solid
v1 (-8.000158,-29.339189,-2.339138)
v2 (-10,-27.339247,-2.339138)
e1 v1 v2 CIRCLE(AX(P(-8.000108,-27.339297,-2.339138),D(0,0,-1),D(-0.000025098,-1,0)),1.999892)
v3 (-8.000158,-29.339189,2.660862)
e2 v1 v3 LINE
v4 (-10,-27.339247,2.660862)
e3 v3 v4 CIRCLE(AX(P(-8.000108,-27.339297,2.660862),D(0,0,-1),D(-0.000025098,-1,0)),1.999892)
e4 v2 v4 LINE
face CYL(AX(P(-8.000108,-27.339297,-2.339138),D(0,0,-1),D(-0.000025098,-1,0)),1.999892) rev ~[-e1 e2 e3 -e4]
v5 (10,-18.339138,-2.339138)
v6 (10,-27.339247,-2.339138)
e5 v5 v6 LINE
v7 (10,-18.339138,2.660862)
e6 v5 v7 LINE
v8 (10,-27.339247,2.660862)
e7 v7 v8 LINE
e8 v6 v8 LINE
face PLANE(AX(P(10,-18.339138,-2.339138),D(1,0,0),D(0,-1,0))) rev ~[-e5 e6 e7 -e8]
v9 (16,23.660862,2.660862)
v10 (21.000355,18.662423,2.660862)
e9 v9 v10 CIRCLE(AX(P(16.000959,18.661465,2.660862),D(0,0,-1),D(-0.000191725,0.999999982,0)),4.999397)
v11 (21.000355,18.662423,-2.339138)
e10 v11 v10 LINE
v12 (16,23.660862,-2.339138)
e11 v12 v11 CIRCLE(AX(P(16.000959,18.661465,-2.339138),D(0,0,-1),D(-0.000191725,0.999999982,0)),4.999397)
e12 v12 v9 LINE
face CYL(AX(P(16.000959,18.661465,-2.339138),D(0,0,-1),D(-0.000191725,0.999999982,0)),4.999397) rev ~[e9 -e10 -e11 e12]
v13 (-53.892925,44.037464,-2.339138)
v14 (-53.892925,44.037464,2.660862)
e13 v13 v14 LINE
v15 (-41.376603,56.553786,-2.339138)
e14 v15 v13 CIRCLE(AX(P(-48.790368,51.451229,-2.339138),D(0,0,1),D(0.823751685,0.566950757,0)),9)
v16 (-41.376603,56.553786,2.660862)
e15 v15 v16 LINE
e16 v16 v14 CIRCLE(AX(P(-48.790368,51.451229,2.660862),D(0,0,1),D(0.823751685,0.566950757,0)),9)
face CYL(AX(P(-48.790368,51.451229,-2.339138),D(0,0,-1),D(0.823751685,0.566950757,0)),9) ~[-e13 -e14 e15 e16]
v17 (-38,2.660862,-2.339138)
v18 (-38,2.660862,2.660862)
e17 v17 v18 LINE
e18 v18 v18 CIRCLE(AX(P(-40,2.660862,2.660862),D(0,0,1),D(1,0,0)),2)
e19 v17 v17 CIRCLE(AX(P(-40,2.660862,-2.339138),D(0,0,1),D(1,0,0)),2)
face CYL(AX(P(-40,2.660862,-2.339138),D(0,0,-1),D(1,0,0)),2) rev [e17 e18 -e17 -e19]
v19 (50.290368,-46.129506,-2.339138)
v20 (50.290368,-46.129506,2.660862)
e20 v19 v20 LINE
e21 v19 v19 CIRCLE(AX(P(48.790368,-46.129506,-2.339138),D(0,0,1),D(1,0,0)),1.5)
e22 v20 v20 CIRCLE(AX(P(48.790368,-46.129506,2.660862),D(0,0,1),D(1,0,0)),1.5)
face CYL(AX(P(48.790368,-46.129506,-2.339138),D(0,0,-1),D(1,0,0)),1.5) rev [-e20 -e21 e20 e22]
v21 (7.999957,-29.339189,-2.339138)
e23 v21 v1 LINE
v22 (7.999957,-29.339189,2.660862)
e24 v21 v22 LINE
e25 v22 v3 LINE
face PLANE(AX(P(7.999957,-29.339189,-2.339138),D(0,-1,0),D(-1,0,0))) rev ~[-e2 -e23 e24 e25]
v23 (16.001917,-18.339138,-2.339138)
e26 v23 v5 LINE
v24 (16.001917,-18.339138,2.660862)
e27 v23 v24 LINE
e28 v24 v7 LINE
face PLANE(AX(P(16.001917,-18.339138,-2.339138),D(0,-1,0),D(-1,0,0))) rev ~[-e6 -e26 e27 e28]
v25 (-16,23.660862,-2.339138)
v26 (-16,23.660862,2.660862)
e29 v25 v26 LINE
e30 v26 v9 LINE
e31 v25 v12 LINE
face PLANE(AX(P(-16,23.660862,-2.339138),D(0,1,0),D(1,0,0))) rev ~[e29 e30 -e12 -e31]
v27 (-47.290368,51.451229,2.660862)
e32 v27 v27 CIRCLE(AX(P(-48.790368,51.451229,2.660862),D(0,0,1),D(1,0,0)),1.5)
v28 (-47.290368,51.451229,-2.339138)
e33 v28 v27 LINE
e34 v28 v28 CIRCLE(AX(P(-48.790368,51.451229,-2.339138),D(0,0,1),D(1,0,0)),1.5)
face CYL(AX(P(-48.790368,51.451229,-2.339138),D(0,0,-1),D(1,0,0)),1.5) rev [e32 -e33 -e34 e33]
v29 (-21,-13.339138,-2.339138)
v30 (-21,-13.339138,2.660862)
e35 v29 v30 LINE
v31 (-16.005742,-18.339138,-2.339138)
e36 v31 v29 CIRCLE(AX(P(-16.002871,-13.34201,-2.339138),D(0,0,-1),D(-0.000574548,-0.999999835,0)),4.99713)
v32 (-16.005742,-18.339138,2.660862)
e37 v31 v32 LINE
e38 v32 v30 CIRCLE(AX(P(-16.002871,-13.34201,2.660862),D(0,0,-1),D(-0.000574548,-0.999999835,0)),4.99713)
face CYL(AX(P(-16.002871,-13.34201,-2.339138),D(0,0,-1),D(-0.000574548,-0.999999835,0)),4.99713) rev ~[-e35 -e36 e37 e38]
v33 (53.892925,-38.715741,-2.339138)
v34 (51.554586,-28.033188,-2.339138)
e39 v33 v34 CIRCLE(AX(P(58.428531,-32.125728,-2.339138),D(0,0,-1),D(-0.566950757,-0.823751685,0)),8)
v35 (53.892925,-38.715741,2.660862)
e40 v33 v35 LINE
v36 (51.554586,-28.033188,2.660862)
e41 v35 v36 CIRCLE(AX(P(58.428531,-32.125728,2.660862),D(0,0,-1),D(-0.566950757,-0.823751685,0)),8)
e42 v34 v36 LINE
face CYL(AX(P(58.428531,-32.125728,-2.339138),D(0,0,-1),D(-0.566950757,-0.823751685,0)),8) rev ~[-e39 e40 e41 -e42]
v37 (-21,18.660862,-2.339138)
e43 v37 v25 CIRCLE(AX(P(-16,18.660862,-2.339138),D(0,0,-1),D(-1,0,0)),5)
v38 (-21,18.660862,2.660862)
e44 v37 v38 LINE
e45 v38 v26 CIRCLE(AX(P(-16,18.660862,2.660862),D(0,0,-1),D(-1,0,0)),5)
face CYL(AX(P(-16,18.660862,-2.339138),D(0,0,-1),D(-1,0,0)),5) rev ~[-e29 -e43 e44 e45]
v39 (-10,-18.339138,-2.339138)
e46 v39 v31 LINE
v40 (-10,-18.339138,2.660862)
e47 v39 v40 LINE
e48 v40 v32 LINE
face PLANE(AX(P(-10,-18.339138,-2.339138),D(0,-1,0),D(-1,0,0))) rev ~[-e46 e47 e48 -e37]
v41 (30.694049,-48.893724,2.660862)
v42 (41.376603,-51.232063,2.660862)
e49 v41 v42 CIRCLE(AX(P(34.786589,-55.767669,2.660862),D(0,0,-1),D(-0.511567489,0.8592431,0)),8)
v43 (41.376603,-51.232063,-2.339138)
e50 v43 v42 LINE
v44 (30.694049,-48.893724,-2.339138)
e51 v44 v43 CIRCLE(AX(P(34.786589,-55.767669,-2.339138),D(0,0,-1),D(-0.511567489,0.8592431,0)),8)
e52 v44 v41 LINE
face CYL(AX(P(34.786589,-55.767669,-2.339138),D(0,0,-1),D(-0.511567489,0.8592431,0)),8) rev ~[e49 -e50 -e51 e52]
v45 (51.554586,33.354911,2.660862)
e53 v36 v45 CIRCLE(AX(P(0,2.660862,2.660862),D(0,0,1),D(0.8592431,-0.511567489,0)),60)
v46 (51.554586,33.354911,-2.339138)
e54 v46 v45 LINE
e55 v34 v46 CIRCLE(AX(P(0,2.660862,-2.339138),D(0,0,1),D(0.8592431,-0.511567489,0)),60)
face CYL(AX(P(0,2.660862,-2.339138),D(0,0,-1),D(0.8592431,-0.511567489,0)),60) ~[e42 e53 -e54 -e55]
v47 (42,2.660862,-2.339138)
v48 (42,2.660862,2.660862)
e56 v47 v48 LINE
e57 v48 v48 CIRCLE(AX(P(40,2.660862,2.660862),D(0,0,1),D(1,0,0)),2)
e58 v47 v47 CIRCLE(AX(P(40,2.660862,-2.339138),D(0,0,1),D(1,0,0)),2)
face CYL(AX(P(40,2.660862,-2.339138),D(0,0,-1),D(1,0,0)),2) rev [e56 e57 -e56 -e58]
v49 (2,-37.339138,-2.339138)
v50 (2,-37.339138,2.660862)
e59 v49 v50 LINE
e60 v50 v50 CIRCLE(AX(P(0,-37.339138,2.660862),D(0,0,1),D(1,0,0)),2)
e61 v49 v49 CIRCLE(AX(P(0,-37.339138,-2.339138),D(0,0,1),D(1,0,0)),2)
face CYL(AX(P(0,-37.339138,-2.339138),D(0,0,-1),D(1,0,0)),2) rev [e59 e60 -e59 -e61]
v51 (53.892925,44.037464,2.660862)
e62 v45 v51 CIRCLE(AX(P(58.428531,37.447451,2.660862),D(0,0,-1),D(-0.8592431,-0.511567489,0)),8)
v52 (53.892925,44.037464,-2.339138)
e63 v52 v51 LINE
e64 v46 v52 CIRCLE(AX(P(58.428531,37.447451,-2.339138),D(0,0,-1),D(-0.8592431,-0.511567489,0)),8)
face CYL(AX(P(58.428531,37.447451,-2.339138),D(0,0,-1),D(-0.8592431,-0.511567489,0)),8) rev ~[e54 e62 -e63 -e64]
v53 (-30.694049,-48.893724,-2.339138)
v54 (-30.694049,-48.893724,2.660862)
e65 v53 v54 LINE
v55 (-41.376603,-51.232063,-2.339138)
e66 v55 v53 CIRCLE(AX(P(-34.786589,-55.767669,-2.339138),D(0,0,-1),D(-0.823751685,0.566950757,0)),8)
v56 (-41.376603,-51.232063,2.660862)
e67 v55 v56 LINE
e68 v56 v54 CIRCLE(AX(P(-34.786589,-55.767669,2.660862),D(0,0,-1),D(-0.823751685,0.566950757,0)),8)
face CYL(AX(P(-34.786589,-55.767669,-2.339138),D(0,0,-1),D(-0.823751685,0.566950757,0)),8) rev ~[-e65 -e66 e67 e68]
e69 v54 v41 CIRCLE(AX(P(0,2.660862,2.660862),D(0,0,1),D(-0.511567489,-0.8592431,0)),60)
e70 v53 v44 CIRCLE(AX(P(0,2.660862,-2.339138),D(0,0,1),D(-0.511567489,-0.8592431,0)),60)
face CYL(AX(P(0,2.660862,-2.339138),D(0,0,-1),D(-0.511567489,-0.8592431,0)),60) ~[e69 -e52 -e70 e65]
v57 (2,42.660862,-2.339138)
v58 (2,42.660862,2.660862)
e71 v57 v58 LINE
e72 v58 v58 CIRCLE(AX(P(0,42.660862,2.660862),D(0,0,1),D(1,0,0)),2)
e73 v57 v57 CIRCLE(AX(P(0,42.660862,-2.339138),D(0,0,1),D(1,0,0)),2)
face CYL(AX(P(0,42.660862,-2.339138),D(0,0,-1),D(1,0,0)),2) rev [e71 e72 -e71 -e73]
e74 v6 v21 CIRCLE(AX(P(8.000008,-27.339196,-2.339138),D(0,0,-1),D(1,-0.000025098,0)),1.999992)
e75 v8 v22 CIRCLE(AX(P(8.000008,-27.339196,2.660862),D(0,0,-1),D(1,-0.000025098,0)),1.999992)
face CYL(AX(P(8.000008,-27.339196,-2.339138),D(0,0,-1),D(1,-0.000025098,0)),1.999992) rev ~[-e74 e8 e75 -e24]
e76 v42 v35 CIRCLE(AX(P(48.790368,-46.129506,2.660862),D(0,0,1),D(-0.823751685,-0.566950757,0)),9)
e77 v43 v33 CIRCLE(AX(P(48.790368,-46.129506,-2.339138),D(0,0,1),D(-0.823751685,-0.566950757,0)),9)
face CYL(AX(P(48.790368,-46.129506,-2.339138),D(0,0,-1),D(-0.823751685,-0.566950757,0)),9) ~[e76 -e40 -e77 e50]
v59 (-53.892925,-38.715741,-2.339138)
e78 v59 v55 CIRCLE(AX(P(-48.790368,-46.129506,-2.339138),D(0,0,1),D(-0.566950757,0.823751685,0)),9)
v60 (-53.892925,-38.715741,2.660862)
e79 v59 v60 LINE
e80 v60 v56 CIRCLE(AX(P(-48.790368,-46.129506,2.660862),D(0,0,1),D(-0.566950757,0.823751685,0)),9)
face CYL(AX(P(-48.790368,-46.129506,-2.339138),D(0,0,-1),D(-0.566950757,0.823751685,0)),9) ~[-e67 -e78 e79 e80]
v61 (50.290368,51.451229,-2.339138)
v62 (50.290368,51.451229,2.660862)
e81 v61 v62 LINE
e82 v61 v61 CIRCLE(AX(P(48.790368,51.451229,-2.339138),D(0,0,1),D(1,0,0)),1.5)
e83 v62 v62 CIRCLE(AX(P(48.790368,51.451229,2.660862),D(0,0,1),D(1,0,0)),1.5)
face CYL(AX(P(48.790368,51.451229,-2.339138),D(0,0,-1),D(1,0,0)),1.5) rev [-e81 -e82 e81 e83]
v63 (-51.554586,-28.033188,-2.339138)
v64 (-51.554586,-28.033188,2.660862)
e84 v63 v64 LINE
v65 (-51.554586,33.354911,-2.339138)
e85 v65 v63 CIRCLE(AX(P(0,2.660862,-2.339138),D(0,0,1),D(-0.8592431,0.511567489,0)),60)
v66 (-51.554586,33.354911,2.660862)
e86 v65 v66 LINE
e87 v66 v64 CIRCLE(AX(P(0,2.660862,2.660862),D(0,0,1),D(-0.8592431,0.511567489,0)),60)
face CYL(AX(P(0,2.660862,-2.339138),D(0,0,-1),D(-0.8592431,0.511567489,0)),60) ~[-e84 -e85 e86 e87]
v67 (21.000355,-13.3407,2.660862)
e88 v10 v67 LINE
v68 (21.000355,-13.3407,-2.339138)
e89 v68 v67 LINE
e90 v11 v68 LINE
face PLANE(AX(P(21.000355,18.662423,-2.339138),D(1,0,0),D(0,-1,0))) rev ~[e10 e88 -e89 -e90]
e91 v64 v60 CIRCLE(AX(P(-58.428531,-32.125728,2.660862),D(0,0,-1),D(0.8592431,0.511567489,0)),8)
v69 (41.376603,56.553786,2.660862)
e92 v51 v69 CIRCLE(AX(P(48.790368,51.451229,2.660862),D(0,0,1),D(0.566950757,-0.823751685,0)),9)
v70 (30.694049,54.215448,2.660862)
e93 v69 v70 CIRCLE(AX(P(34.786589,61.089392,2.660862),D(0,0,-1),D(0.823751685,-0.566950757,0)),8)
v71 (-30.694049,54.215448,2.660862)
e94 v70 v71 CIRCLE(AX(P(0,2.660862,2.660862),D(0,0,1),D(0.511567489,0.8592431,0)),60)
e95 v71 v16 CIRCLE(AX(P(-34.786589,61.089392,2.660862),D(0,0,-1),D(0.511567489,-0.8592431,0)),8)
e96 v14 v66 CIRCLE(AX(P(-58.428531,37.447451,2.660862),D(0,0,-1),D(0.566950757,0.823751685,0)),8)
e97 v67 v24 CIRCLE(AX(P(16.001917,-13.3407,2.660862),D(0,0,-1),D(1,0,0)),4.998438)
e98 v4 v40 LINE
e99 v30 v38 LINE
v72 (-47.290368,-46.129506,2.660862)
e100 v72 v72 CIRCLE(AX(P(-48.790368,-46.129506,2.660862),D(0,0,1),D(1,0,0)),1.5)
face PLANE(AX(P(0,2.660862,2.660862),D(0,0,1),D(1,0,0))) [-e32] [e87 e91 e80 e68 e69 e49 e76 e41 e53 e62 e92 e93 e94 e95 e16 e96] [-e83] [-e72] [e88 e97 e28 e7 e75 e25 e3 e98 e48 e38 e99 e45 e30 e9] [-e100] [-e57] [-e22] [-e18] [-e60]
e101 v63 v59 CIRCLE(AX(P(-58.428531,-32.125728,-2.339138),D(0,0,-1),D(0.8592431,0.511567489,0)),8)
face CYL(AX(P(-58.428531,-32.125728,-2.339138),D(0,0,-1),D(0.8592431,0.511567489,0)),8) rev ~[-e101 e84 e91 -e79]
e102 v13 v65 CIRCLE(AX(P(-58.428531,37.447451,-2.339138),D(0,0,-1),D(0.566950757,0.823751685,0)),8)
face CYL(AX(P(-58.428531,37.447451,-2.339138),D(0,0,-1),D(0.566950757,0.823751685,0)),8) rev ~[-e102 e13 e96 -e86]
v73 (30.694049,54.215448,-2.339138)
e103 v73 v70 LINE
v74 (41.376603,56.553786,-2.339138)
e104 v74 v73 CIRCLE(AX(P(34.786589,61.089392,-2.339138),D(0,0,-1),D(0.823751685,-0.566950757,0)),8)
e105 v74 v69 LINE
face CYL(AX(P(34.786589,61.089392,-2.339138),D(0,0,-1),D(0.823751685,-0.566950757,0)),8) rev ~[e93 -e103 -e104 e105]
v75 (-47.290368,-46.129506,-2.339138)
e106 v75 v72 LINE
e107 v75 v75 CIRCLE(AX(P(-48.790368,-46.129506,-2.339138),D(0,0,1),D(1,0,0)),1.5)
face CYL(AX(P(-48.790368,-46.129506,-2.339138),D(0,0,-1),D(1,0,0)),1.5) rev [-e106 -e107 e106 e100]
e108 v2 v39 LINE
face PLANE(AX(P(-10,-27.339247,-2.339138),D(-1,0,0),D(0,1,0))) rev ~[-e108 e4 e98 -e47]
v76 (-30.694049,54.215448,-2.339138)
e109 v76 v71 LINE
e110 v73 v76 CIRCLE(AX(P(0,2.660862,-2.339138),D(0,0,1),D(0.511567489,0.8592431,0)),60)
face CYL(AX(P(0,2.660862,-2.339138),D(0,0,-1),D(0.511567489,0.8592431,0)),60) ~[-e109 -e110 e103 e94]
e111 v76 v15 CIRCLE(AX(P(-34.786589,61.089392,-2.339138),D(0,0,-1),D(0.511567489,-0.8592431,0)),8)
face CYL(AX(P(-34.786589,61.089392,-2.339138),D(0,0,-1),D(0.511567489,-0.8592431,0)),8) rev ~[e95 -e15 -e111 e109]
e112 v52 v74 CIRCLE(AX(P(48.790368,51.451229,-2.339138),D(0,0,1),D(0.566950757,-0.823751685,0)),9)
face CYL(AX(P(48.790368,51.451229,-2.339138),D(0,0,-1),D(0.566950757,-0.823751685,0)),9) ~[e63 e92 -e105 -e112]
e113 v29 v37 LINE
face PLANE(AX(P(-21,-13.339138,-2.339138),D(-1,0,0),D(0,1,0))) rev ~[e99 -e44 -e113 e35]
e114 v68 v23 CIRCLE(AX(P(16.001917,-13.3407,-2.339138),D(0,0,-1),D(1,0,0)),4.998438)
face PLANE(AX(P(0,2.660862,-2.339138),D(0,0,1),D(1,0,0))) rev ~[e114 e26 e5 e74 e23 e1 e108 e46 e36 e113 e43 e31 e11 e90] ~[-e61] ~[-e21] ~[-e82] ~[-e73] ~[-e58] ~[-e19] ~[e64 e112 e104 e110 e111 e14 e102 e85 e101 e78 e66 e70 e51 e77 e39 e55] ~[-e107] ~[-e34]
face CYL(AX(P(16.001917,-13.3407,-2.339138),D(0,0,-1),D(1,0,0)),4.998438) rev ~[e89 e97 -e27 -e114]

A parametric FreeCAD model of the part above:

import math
import FreeCAD as App
import Part
import Sketcher
from FreeCAD import Vector

doc = App.newDocument("Part")
body = doc.addObject("PartDesign::Body", "Body")

# Sketch on XZ plane
sketch1 = body.newObject("Sketcher::SketchObject", "Sketch")
sketch1.AttachmentSupport = (doc.getObject("XZ_Plane"), [""])
sketch1.MapMode = "FlatFace"
sketch1.addGeometry([
    Part.ArcOfCircle(Part.Circle(Vector(34.8, -58.4, 0), Vector(0, 0, 1), 8), math.radians(35), math.radians(121)),  # 0
    Part.ArcOfCircle(Part.Circle(Vector(0, 0, 0), Vector(0, 0, 1), 60), math.radians(-121), math.radians(-59)),  # 1
    Part.ArcOfCircle(Part.Circle(Vector(-34.8, -58.4, 0), Vector(0, 0, 1), 8), math.radians(59), math.radians(145)),  # 2
    Part.ArcOfCircle(Part.Circle(Vector(-48.8, -48.8, 0), Vector(0, 0, 1), 9), math.radians(125), math.radians(325)),  # 3
    Part.ArcOfCircle(Part.Circle(Vector(-58.4, -34.8, 0), Vector(0, 0, 1), 8), math.radians(-55), math.radians(31)),  # 4
    Part.ArcOfCircle(Part.Circle(Vector(0, 0, 0), Vector(0, 0, 1), 60), math.radians(149), math.radians(211)),  # 5
    Part.ArcOfCircle(Part.Circle(Vector(-58.4, 34.8, 0), Vector(0, 0, 1), 8), math.radians(-31), math.radians(55)),  # 6
    Part.ArcOfCircle(Part.Circle(Vector(-48.8, 48.8, 0), Vector(0, 0, 1), 9), math.radians(35), math.radians(235)),  # 7
    Part.ArcOfCircle(Part.Circle(Vector(-34.8, 58.4, 0), Vector(0, 0, 1), 8), math.radians(-145), math.radians(-59)),  # 8
    Part.ArcOfCircle(Part.Circle(Vector(0, 0, 0), Vector(0, 0, 1), 60), math.radians(59), math.radians(121)),  # 9
    Part.ArcOfCircle(Part.Circle(Vector(34.8, 58.4, 0), Vector(0, 0, 1), 8), math.radians(-121), math.radians(-35)),  # 10
    Part.ArcOfCircle(Part.Circle(Vector(48.8, 48.8, 0), Vector(0, 0, 1), 9), math.radians(-55), math.radians(145)),  # 11
    Part.ArcOfCircle(Part.Circle(Vector(58.4, 34.8, 0), Vector(0, 0, 1), 8), math.radians(125), math.radians(211)),  # 12
    Part.ArcOfCircle(Part.Circle(Vector(0, 0, 0), Vector(0, 0, 1), 60), math.radians(-31), math.radians(31)),  # 13
    Part.ArcOfCircle(Part.Circle(Vector(58.4, -34.8, 0), Vector(0, 0, 1), 8), math.radians(149), math.radians(235)),  # 14
    Part.ArcOfCircle(Part.Circle(Vector(48.8, -48.8, 0), Vector(0, 0, 1), 9), math.radians(-145), math.radians(55)),  # 15
    Part.Circle(Vector(-48.8, 48.8, 0), Vector(0, 0, 1), 1.5),  # 16
    Part.Circle(Vector(0, 40, 0), Vector(0, 0, 1), 2),  # 17
    Part.Circle(Vector(48.8, 48.8, 0), Vector(0, 0, 1), 1.5),  # 18
    Part.ArcOfCircle(Part.Circle(Vector(16, 16, 0), Vector(0, 0, 1), 5), math.radians(0), math.radians(90)),  # 19
    Part.LineSegment(Vector(16, 21, 0), Vector(10, 21, 0)),  # 20
    Part.LineSegment(Vector(10, 21, 0), Vector(10, 30, 0)),  # 21
    Part.ArcOfCircle(Part.Circle(Vector(8, 30, 0), Vector(0, 0, 1), 2), math.radians(0), math.radians(90)),  # 22
    Part.LineSegment(Vector(8, 32, 0), Vector(-8, 32, 0)),  # 23
    Part.ArcOfCircle(Part.Circle(Vector(-8, 30, 0), Vector(0, 0, 1), 2), math.radians(90), math.radians(180)),  # 24
    Part.LineSegment(Vector(-10, 30, 0), Vector(-10, 21, 0)),  # 25
    Part.LineSegment(Vector(-10, 21, 0), Vector(-16, 21, 0)),  # 26
    Part.ArcOfCircle(Part.Circle(Vector(-16, 16, 0), Vector(0, 0, 1), 5), math.radians(90), math.radians(180)),  # 27
    Part.LineSegment(Vector(-21, 16, 0), Vector(-21, -16, 0)),  # 28
    Part.ArcOfCircle(Part.Circle(Vector(-16, -16, 0), Vector(0, 0, 1), 5), math.radians(180), math.radians(270)),  # 29
    Part.LineSegment(Vector(-16, -21, 0), Vector(16, -21, 0)),  # 30
    Part.ArcOfCircle(Part.Circle(Vector(16, -16, 0), Vector(0, 0, 1), 5), math.radians(-90), math.radians(0)),  # 31
    Part.LineSegment(Vector(21, -16, 0), Vector(21, 16, 0)),  # 32
    Part.Circle(Vector(-40, 0, 0), Vector(0, 0, 1), 2),  # 33
    Part.Circle(Vector(-48.8, -48.8, 0), Vector(0, 0, 1), 1.5),  # 34
    Part.Circle(Vector(40, 0, 0), Vector(0, 0, 1), 2),  # 35
    Part.Circle(Vector(0, -40, 0), Vector(0, 0, 1), 2),  # 36
    Part.Circle(Vector(48.8, -48.8, 0), Vector(0, 0, 1), 1.5),  # 37
], False)
sketch1.addConstraint([
    Sketcher.Constraint("Tangent", 0, 2, 1, 2),
    Sketcher.Constraint("Tangent", 1, 1, 2, 1),
    Sketcher.Constraint("Tangent", 2, 2, 3, 2),
    Sketcher.Constraint("Tangent", 3, 1, 4, 1),
    Sketcher.Constraint("Tangent", 4, 2, 5, 2),
    Sketcher.Constraint("Tangent", 5, 1, 6, 1),
    Sketcher.Constraint("Tangent", 6, 2, 7, 2),
    Sketcher.Constraint("Tangent", 7, 1, 8, 1),
    Sketcher.Constraint("Tangent", 8, 2, 9, 2),
    Sketcher.Constraint("Tangent", 9, 1, 10, 1),
    Sketcher.Constraint("Tangent", 10, 2, 11, 2),
    Sketcher.Constraint("Tangent", 11, 1, 12, 1),
    Sketcher.Constraint("Tangent", 12, 2, 13, 2),
    Sketcher.Constraint("Tangent", 13, 1, 14, 1),
    Sketcher.Constraint("Tangent", 14, 2, 15, 2),
    Sketcher.Constraint("Tangent", 15, 1, 0, 1),
    Sketcher.Constraint("Tangent", 19, 2, 20, 1),
    Sketcher.Constraint("Coincident", 20, 2, 21, 1),
    Sketcher.Constraint("Coincident", 21, 2, 22, 1),
    Sketcher.Constraint("Coincident", 22, 2, 23, 1),
    Sketcher.Constraint("Coincident", 23, 2, 24, 1),
    Sketcher.Constraint("Coincident", 24, 2, 25, 1),
    Sketcher.Constraint("Coincident", 25, 2, 26, 1),
    Sketcher.Constraint("Coincident", 26, 2, 27, 1),
    Sketcher.Constraint("Coincident", 27, 2, 28, 1),
    Sketcher.Constraint("Tangent", 28, 2, 29, 1),
    Sketcher.Constraint("Tangent", 29, 2, 30, 1),
    Sketcher.Constraint("Coincident", 30, 2, 31, 1),
    Sketcher.Constraint("Coincident", 31, 2, 32, 1),
    Sketcher.Constraint("Tangent", 32, 2, 19, 1),
    Sketcher.Constraint("Horizontal", 20),
    Sketcher.Constraint("Vertical", 21),
    Sketcher.Constraint("Horizontal", 23),
    Sketcher.Constraint("Vertical", 25),
    Sketcher.Constraint("Horizontal", 26),
    Sketcher.Constraint("Vertical", 28),
    Sketcher.Constraint("Horizontal", 30),
    Sketcher.Constraint("Vertical", 32),
    Sketcher.Constraint("Coincident", 1, 3, -1, 1),
    Sketcher.Constraint("Coincident", 5, 3, -1, 1),
    Sketcher.Constraint("Coincident", 9, 3, -1, 1),
    Sketcher.Constraint("Coincident", 13, 3, -1, 1),
    Sketcher.Constraint("Coincident", 16, 3, 7, 3),
    Sketcher.Constraint("Coincident", 18, 3, 11, 3),
    Sketcher.Constraint("Coincident", 34, 3, 3, 3),
    Sketcher.Constraint("Coincident", 37, 3, 15, 3),
    Sketcher.Constraint("Equal", 0, 2),
    Sketcher.Constraint("Equal", 2, 4),
    Sketcher.Constraint("Equal", 1, 5),
    Sketcher.Constraint("Equal", 4, 6),
    Sketcher.Constraint("Equal", 3, 7),
    Sketcher.Constraint("Equal", 6, 8),
    Sketcher.Constraint("Equal", 5, 9),
    Sketcher.Constraint("Equal", 8, 10),
    Sketcher.Constraint("Equal", 7, 11),
    Sketcher.Constraint("Equal", 10, 12),
    Sketcher.Constraint("Equal", 9, 13),
    Sketcher.Constraint("Equal", 12, 14),
    Sketcher.Constraint("Equal", 11, 15),
    Sketcher.Constraint("Equal", 16, 18),
    Sketcher.Constraint("Equal", 17, 33),
    Sketcher.Constraint("Equal", 18, 34),
    Sketcher.Constraint("Equal", 33, 35),
    Sketcher.Constraint("Equal", 35, 36),
    Sketcher.Constraint("Equal", 34, 37),
    Sketcher.Constraint("Symmetric", 3, 3, 11, 3, -1, 1),
    Sketcher.Constraint("Symmetric", 7, 3, 15, 3, -1, 1),
    Sketcher.Constraint("Symmetric", 33, 3, 35, 3, -1, 1),
    Sketcher.Constraint("Symmetric", 17, 3, 36, 3, -1, 1),
    Sketcher.Constraint("Symmetric", 7, 3, 11, 3, -2),
    Sketcher.Constraint("Symmetric", 21, 2, 24, 2, -2),
    Sketcher.Constraint("PointOnObject", 17, 3, -2),
    Sketcher.Constraint("PointOnObject", 33, 3, -1),
    Sketcher.Constraint("Horizontal", 20, 2, 25, 2),
    Sketcher.Constraint("Equal", 30, 28),
    Sketcher.Constraint("Diameter", 16, 3.0),
    Sketcher.Constraint("Diameter", 17, 4.0),
    Sketcher.Constraint("Radius", 0, 8.0),
    Sketcher.Constraint("Radius", 1, 60.0),
    Sketcher.Constraint("Radius", 3, 9.0),
    Sketcher.Constraint("Radius", 29, 5.0),
    Sketcher.Constraint("DistanceX", 30, 1, 30, 2, 32.0),
    Sketcher.Constraint("DistanceY", -1, 1, 17, 3, 40.0),
    Sketcher.Constraint("DistanceX", 29, 3, -1, 1, 16.0),
    Sketcher.Constraint("DistanceY", 29, 3, -1, 1, 16.0),
    Sketcher.Constraint("DistanceX", 33, 3, -1, 1, 40.0),
    Sketcher.Constraint("DistanceY", -1, 1, 19, 2, 21.0),
    Sketcher.Constraint("DistanceX", -1, 1, 20, 2, 10.0),
    Sketcher.Constraint("Radius", 19, 4.998438),
    Sketcher.Constraint("Radius", 24, 1.999892),
    Sketcher.Constraint("Radius", 27, 4.99713),
    Sketcher.Constraint("Radius", 22, 1.999992),
    Sketcher.Constraint("Radius", 31, 4.999397),
    Sketcher.Constraint("DistanceY", 21, 1, 21, 2, 9.000108),
    Sketcher.Constraint("DistanceX", 20, 2, 20, 1, 6.001917),
    Sketcher.Constraint("DistanceX", 23, 2, 23, 1, 16.000116),
    Sketcher.Constraint("DistanceX", 26, 2, 26, 1, 6.005742),
    Sketcher.Constraint("DistanceY", 32, 1, 32, 2, 32.003124),
    Sketcher.Constraint("DistanceX", -1, 1, 0, 3, 34.786589),
    Sketcher.Constraint("DistanceX", 4, 3, -1, 1, 58.428531),
    Sketcher.Constraint("DistanceY", -1, 1, 24, 3, 30.000158),
    Sketcher.Constraint("DistanceX", 23, 2, -1, 1, 8.000158),
])
pad1 = body.newObject("PartDesign::Pad", "Pad")
pad1.Profile = sketch1
pad1.Length = 5
pad1.Reversed = True
body2 = doc.addObject("PartDesign::Body", "Body001")
doc.recompute()

body.Placement = App.Placement(Vector(0, 2.660862, -2.339138), App.Rotation(Vector(1, 0, 0), 90))
boolean = body2.newObject("PartDesign::Boolean", "Boolean")
boolean.Type = "Fuse"
boolean.addObjects([body])

doc.recompute()
